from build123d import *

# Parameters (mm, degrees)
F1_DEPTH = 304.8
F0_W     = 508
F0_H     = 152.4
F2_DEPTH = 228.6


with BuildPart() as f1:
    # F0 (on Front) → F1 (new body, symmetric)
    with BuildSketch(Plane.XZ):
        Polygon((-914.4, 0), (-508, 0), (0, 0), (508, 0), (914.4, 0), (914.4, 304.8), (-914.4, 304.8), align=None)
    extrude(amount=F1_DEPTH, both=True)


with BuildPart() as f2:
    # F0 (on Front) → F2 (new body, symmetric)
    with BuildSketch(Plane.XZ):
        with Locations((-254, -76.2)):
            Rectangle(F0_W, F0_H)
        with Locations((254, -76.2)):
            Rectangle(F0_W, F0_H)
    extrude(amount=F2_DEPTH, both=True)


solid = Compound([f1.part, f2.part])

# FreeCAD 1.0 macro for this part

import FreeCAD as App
import Part
import Sketcher
from FreeCAD import Vector
Q = App.Units.Quantity

doc = App.newDocument("Part")
body = doc.addObject("PartDesign::Body", "Body")

# Sketch on XZ plane
sketch1 = doc.addObject("Sketcher::SketchObject", "Sketch")
body.addObject(sketch1)
sketch1.AttachmentSupport = (doc.XZ_Plane, [""])
sketch1.MapMode = "FlatFace"
sketch1.addGeometry([
    Part.LineSegment(Vector(-914, 0, 0), Vector(914, 0, 0)),
    Part.LineSegment(Vector(914, 0, 0), Vector(914, 305, 0)),
    Part.LineSegment(Vector(914, 305, 0), Vector(-914, 305, 0)),
    Part.LineSegment(Vector(-914, 305, 0), Vector(-914, 0, 0)),
], False)
sketch1.addConstraint([
    Sketcher.Constraint("Coincident", 0, 2, 1, 1),
    Sketcher.Constraint("Coincident", 1, 2, 2, 1),
    Sketcher.Constraint("Coincident", 2, 2, 3, 1),
    Sketcher.Constraint("Coincident", 3, 2, 0, 1),
    Sketcher.Constraint("Horizontal", 0),
    Sketcher.Constraint("Vertical", 1),
    Sketcher.Constraint("Horizontal", 2),
    Sketcher.Constraint("Vertical", 3),
    Sketcher.Constraint("Symmetric", 0, 2, 3, 2, -1, 1),
    Sketcher.Constraint("DistanceX", 0, 1, 0, 2, Q("72 in")),
    Sketcher.Constraint("DistanceY", 1, 1, 1, 2, Q("12 in")),
])
pad1 = doc.addObject("PartDesign::Pad", "Pad")
body.addObject(pad1)
pad1.Profile = sketch1
pad1.Length = Q("24 in")
pad1.Midplane = True
body2 = doc.addObject("PartDesign::Body", "Body001")

# Sketch on XZ plane
sketch2 = doc.addObject("Sketcher::SketchObject", "Sketch001")
body2.addObject(sketch2)
sketch2.AttachmentSupport = (doc.getObject("XZ_Plane001"), [""])
sketch2.MapMode = "FlatFace"
sketch2.addGeometry([
    Part.LineSegment(Vector(-508, 0, 0), Vector(-508, -152, 0)),
    Part.LineSegment(Vector(-508, -152, 0), Vector(508, -152, 0)),
    Part.LineSegment(Vector(508, -152, 0), Vector(508, 0, 0)),
    Part.LineSegment(Vector(508, 0, 0), Vector(-508, 0, 0)),
], False)
sketch2.addConstraint([
    Sketcher.Constraint("Coincident", 0, 2, 1, 1),
    Sketcher.Constraint("Coincident", 1, 2, 2, 1),
    Sketcher.Constraint("Coincident", 2, 2, 3, 1),
    Sketcher.Constraint("Coincident", 3, 2, 0, 1),
    Sketcher.Constraint("Vertical", 0),
    Sketcher.Constraint("Horizontal", 1),
    Sketcher.Constraint("Vertical", 2),
    Sketcher.Constraint("Horizontal", 3),
    Sketcher.Constraint("Symmetric", 2, 2, 3, 2, -1, 1),
    Sketcher.Constraint("DistanceX", 1, 1, 1, 2, Q("40 in")),
    Sketcher.Constraint("DistanceY", 0, 2, 0, 1, Q("6 in")),
])
pad2 = doc.addObject("PartDesign::Pad", "Pad001")
body2.addObject(pad2)
pad2.Profile = sketch2
pad2.Length = Q("18 in")
pad2.Midplane = True

doc.recompute()
